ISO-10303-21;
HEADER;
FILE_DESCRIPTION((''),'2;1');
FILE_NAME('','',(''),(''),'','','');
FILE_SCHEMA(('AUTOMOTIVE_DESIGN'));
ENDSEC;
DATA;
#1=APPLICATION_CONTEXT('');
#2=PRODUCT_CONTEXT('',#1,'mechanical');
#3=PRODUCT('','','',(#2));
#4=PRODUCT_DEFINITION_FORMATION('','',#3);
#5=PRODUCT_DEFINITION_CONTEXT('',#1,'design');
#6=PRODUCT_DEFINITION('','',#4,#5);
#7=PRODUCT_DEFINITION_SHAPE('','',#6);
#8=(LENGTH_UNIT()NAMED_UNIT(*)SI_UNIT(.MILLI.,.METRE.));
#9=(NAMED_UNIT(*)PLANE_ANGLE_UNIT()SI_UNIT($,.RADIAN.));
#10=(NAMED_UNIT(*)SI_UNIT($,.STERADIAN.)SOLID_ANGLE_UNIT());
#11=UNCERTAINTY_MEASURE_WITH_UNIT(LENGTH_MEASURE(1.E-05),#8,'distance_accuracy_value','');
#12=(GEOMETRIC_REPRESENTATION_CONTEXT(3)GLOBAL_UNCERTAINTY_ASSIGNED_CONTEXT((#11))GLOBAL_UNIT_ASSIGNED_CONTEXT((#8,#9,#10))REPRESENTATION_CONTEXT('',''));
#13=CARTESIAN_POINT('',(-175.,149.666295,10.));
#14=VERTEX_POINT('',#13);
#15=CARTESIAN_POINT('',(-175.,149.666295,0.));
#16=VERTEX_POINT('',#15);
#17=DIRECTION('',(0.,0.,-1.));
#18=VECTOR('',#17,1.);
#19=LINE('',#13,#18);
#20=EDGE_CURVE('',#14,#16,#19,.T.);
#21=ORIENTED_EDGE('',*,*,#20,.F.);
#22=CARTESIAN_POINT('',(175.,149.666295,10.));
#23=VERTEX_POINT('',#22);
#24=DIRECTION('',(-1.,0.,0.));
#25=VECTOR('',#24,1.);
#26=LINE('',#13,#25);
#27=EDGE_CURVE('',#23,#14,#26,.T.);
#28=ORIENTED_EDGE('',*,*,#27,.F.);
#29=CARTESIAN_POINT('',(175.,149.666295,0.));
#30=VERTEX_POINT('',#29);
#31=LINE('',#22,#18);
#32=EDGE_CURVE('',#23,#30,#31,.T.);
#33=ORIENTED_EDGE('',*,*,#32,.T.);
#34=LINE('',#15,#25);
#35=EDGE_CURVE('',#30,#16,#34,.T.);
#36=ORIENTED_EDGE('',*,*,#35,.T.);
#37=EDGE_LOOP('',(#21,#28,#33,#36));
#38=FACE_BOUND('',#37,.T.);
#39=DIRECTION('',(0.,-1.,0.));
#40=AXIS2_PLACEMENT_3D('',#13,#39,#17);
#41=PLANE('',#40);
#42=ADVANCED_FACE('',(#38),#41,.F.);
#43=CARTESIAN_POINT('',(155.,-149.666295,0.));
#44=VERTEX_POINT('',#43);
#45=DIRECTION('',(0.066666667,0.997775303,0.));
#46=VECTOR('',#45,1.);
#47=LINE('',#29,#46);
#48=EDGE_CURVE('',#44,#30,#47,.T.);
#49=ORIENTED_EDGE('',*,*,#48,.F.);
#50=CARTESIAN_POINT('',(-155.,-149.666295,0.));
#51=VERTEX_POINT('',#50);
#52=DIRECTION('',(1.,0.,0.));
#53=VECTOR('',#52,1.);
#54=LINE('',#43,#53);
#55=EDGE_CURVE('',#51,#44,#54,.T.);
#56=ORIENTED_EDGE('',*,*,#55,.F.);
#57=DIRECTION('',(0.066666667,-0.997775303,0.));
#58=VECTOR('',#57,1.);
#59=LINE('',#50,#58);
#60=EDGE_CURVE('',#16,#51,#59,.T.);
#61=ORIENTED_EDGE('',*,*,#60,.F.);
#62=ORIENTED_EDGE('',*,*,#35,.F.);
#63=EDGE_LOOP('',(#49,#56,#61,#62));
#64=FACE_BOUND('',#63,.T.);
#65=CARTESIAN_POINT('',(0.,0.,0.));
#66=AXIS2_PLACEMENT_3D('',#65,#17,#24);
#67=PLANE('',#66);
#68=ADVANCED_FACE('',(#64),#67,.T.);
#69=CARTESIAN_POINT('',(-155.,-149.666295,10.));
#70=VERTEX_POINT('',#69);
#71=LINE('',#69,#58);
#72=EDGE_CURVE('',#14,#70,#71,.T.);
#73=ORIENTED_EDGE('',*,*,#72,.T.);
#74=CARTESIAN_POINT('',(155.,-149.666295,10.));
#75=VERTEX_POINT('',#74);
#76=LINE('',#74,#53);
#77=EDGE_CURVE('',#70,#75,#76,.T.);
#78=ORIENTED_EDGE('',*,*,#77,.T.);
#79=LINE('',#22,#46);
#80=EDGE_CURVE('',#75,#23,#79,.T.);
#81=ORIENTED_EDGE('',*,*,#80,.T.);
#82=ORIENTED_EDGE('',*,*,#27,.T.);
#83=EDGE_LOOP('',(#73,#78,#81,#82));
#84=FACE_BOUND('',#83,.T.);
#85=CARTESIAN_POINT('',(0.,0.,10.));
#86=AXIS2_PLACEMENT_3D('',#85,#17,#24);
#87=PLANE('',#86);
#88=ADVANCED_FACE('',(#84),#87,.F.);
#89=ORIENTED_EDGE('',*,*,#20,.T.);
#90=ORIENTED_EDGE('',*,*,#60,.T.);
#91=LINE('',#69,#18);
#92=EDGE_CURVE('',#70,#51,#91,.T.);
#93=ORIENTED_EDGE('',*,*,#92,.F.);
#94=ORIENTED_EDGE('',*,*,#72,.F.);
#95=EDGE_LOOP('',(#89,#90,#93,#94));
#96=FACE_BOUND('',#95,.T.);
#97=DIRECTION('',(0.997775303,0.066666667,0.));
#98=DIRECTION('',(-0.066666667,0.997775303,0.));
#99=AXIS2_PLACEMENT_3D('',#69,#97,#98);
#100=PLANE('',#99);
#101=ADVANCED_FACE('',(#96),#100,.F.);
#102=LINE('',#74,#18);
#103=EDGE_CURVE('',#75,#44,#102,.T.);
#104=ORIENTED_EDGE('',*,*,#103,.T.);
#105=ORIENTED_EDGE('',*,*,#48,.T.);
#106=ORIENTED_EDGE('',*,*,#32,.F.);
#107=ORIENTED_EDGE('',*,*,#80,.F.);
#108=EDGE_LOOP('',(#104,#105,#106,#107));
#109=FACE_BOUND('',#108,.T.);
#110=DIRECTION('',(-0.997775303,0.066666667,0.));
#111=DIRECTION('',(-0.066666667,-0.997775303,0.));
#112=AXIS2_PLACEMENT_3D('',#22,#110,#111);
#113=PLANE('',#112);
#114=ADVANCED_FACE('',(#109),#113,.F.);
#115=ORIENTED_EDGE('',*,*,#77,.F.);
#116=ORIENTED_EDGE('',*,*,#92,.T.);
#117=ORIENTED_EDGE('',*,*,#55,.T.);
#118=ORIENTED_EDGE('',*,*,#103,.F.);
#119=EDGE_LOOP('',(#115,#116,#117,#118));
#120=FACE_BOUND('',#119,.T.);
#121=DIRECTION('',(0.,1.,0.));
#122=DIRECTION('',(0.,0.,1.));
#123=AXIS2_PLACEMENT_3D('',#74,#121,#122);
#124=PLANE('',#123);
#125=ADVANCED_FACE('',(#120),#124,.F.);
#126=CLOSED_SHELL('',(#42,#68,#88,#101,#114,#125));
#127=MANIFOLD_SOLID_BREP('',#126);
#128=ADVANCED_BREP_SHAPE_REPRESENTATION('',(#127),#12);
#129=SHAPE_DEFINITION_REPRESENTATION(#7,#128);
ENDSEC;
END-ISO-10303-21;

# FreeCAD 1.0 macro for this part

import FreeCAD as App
import Part
import Sketcher

V = App.Vector

doc = App.newDocument("Part")
body = doc.addObject("PartDesign::Body", "Body")

sketch1 = doc.addObject("Sketcher::SketchObject", "Sketch")
body.addObject(sketch1)
sketch1.AttachmentSupport = (doc.XY_Plane, [""])
sketch1.MapMode = "FlatFace"
sketch1.addGeometry(Part.LineSegment(V(175, 150, 0), V(-175, 150, 0)), False)
sketch1.addGeometry(Part.LineSegment(V(-175, 150, 0), V(-155, -150, 0)), False)
sketch1.addGeometry(Part.LineSegment(V(-155, -150, 0), V(155, -150, 0)), False)
sketch1.addGeometry(Part.LineSegment(V(155, -150, 0), V(175, 150, 0)), False)
sketch1.addConstraint(Sketcher.Constraint("Coincident", 0, 2, 1, 1))
sketch1.addConstraint(Sketcher.Constraint("Coincident", 1, 2, 2, 1))
sketch1.addConstraint(Sketcher.Constraint("Coincident", 2, 2, 3, 1))
sketch1.addConstraint(Sketcher.Constraint("Coincident", 3, 2, 0, 1))
sketch1.addConstraint(Sketcher.Constraint("Horizontal", 0))
sketch1.addConstraint(Sketcher.Constraint("Horizontal", 2))
sketch1.addConstraint(Sketcher.Constraint("Equal", 1, 3))
sketch1.addConstraint(Sketcher.Constraint("DistanceX", 0, 2, 0, 1, 350.0))
sketch1.addConstraint(Sketcher.Constraint("DistanceX", 2, 1, 2, 2, 310.0))
sketch1.addConstraint(Sketcher.Constraint("Distance", 1, 300.0))
sketch1.addConstraint(Sketcher.Constraint("DistanceX", 0, 2, -1, 1, 175.0))
sketch1.addConstraint(Sketcher.Constraint("DistanceY", -1, 1, 0, 2, 149.666295))
pad1 = doc.addObject("PartDesign::Pad", "Pad")
body.addObject(pad1)
pad1.Profile = sketch1
pad1.Length = 10

doc.recompute()
